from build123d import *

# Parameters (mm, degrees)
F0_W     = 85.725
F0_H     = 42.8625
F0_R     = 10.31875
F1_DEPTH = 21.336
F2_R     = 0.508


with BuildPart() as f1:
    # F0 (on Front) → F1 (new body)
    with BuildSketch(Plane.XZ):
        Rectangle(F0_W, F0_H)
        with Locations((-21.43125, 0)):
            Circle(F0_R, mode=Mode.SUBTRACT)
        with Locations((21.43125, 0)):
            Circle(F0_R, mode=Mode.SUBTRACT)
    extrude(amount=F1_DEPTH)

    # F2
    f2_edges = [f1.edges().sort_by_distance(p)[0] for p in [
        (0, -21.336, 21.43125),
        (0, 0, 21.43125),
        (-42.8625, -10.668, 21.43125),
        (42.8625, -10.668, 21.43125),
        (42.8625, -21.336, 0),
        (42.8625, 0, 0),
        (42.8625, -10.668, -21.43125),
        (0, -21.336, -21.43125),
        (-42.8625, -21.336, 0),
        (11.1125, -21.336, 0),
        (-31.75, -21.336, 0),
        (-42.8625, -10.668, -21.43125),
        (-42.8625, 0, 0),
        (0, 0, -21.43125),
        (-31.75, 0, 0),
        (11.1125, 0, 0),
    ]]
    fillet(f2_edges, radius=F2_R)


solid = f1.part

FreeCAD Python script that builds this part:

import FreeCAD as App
import Part
import Sketcher

V = App.Vector
Q = App.Units.Quantity


def add_polygon(sketch, points):
    """Adds a closed chain of lines whose ends are joined by coincident constraints."""
    first, n = sketch.GeometryCount, len(points)
    for a, b in zip(points, points[1:] + points[:1]):
        sketch.addGeometry(Part.LineSegment(App.Vector(*a, 0), App.Vector(*b, 0)), False)
    for i in range(n):
        sketch.addConstraint(Sketcher.Constraint("Coincident", first + i, 2, first + (i + 1) % n, 1))

doc = App.newDocument("Part")
body = doc.addObject("PartDesign::Body", "Body")

sketch1 = doc.addObject("Sketcher::SketchObject", "Sketch")
body.addObject(sketch1)
sketch1.AttachmentSupport = (doc.XZ_Plane, [""])
sketch1.MapMode = "FlatFace"
add_polygon(sketch1, [(-43, 21), (-43, -21), (43, -21), (43, 21)])
sketch1.addGeometry(Part.Circle(V(-21, 0, 0), V(0, 0, 1), 10), False)
sketch1.addGeometry(Part.Circle(V(21, 0, 0), V(0, 0, 1), 10), False)
sketch1.addConstraint([
    Sketcher.Constraint("Vertical", 0),
    Sketcher.Constraint("Horizontal", 1),
    Sketcher.Constraint("Vertical", 2),
    Sketcher.Constraint("Horizontal", 3),
    Sketcher.Constraint("Equal", 4, 5),
    Sketcher.Constraint("Symmetric", 4, 3, 5, 3, -1, 1),
    Sketcher.Constraint("Symmetric", 0, 2, 2, 2, -1, 1),
    Sketcher.Constraint("PointOnObject", 4, 3, -1),
    Sketcher.Constraint("Diameter", 4, Q("0.8125 in")),
    Sketcher.Constraint("DistanceX", 1, 1, 1, 2, Q("3.375 in")),
    Sketcher.Constraint("DistanceY", 0, 2, 0, 1, Q("1.6875 in")),
    Sketcher.Constraint("DistanceX", 4, 3, -1, 1, Q("0.84375 in")),
])
pad1 = doc.addObject("PartDesign::Pad", "Pad")
body.addObject(pad1)
pad1.Profile = sketch1
pad1.Length = Q("0.84 in")
doc.recompute()

fillet = doc.addObject("PartDesign::Fillet", "Fillet")
body.addObject(fillet)
fillet.Base = (pad1, ["Edge1"])
fillet.UseAllEdges = True
fillet.Radius = Q("0.02 in")

doc.recompute()
